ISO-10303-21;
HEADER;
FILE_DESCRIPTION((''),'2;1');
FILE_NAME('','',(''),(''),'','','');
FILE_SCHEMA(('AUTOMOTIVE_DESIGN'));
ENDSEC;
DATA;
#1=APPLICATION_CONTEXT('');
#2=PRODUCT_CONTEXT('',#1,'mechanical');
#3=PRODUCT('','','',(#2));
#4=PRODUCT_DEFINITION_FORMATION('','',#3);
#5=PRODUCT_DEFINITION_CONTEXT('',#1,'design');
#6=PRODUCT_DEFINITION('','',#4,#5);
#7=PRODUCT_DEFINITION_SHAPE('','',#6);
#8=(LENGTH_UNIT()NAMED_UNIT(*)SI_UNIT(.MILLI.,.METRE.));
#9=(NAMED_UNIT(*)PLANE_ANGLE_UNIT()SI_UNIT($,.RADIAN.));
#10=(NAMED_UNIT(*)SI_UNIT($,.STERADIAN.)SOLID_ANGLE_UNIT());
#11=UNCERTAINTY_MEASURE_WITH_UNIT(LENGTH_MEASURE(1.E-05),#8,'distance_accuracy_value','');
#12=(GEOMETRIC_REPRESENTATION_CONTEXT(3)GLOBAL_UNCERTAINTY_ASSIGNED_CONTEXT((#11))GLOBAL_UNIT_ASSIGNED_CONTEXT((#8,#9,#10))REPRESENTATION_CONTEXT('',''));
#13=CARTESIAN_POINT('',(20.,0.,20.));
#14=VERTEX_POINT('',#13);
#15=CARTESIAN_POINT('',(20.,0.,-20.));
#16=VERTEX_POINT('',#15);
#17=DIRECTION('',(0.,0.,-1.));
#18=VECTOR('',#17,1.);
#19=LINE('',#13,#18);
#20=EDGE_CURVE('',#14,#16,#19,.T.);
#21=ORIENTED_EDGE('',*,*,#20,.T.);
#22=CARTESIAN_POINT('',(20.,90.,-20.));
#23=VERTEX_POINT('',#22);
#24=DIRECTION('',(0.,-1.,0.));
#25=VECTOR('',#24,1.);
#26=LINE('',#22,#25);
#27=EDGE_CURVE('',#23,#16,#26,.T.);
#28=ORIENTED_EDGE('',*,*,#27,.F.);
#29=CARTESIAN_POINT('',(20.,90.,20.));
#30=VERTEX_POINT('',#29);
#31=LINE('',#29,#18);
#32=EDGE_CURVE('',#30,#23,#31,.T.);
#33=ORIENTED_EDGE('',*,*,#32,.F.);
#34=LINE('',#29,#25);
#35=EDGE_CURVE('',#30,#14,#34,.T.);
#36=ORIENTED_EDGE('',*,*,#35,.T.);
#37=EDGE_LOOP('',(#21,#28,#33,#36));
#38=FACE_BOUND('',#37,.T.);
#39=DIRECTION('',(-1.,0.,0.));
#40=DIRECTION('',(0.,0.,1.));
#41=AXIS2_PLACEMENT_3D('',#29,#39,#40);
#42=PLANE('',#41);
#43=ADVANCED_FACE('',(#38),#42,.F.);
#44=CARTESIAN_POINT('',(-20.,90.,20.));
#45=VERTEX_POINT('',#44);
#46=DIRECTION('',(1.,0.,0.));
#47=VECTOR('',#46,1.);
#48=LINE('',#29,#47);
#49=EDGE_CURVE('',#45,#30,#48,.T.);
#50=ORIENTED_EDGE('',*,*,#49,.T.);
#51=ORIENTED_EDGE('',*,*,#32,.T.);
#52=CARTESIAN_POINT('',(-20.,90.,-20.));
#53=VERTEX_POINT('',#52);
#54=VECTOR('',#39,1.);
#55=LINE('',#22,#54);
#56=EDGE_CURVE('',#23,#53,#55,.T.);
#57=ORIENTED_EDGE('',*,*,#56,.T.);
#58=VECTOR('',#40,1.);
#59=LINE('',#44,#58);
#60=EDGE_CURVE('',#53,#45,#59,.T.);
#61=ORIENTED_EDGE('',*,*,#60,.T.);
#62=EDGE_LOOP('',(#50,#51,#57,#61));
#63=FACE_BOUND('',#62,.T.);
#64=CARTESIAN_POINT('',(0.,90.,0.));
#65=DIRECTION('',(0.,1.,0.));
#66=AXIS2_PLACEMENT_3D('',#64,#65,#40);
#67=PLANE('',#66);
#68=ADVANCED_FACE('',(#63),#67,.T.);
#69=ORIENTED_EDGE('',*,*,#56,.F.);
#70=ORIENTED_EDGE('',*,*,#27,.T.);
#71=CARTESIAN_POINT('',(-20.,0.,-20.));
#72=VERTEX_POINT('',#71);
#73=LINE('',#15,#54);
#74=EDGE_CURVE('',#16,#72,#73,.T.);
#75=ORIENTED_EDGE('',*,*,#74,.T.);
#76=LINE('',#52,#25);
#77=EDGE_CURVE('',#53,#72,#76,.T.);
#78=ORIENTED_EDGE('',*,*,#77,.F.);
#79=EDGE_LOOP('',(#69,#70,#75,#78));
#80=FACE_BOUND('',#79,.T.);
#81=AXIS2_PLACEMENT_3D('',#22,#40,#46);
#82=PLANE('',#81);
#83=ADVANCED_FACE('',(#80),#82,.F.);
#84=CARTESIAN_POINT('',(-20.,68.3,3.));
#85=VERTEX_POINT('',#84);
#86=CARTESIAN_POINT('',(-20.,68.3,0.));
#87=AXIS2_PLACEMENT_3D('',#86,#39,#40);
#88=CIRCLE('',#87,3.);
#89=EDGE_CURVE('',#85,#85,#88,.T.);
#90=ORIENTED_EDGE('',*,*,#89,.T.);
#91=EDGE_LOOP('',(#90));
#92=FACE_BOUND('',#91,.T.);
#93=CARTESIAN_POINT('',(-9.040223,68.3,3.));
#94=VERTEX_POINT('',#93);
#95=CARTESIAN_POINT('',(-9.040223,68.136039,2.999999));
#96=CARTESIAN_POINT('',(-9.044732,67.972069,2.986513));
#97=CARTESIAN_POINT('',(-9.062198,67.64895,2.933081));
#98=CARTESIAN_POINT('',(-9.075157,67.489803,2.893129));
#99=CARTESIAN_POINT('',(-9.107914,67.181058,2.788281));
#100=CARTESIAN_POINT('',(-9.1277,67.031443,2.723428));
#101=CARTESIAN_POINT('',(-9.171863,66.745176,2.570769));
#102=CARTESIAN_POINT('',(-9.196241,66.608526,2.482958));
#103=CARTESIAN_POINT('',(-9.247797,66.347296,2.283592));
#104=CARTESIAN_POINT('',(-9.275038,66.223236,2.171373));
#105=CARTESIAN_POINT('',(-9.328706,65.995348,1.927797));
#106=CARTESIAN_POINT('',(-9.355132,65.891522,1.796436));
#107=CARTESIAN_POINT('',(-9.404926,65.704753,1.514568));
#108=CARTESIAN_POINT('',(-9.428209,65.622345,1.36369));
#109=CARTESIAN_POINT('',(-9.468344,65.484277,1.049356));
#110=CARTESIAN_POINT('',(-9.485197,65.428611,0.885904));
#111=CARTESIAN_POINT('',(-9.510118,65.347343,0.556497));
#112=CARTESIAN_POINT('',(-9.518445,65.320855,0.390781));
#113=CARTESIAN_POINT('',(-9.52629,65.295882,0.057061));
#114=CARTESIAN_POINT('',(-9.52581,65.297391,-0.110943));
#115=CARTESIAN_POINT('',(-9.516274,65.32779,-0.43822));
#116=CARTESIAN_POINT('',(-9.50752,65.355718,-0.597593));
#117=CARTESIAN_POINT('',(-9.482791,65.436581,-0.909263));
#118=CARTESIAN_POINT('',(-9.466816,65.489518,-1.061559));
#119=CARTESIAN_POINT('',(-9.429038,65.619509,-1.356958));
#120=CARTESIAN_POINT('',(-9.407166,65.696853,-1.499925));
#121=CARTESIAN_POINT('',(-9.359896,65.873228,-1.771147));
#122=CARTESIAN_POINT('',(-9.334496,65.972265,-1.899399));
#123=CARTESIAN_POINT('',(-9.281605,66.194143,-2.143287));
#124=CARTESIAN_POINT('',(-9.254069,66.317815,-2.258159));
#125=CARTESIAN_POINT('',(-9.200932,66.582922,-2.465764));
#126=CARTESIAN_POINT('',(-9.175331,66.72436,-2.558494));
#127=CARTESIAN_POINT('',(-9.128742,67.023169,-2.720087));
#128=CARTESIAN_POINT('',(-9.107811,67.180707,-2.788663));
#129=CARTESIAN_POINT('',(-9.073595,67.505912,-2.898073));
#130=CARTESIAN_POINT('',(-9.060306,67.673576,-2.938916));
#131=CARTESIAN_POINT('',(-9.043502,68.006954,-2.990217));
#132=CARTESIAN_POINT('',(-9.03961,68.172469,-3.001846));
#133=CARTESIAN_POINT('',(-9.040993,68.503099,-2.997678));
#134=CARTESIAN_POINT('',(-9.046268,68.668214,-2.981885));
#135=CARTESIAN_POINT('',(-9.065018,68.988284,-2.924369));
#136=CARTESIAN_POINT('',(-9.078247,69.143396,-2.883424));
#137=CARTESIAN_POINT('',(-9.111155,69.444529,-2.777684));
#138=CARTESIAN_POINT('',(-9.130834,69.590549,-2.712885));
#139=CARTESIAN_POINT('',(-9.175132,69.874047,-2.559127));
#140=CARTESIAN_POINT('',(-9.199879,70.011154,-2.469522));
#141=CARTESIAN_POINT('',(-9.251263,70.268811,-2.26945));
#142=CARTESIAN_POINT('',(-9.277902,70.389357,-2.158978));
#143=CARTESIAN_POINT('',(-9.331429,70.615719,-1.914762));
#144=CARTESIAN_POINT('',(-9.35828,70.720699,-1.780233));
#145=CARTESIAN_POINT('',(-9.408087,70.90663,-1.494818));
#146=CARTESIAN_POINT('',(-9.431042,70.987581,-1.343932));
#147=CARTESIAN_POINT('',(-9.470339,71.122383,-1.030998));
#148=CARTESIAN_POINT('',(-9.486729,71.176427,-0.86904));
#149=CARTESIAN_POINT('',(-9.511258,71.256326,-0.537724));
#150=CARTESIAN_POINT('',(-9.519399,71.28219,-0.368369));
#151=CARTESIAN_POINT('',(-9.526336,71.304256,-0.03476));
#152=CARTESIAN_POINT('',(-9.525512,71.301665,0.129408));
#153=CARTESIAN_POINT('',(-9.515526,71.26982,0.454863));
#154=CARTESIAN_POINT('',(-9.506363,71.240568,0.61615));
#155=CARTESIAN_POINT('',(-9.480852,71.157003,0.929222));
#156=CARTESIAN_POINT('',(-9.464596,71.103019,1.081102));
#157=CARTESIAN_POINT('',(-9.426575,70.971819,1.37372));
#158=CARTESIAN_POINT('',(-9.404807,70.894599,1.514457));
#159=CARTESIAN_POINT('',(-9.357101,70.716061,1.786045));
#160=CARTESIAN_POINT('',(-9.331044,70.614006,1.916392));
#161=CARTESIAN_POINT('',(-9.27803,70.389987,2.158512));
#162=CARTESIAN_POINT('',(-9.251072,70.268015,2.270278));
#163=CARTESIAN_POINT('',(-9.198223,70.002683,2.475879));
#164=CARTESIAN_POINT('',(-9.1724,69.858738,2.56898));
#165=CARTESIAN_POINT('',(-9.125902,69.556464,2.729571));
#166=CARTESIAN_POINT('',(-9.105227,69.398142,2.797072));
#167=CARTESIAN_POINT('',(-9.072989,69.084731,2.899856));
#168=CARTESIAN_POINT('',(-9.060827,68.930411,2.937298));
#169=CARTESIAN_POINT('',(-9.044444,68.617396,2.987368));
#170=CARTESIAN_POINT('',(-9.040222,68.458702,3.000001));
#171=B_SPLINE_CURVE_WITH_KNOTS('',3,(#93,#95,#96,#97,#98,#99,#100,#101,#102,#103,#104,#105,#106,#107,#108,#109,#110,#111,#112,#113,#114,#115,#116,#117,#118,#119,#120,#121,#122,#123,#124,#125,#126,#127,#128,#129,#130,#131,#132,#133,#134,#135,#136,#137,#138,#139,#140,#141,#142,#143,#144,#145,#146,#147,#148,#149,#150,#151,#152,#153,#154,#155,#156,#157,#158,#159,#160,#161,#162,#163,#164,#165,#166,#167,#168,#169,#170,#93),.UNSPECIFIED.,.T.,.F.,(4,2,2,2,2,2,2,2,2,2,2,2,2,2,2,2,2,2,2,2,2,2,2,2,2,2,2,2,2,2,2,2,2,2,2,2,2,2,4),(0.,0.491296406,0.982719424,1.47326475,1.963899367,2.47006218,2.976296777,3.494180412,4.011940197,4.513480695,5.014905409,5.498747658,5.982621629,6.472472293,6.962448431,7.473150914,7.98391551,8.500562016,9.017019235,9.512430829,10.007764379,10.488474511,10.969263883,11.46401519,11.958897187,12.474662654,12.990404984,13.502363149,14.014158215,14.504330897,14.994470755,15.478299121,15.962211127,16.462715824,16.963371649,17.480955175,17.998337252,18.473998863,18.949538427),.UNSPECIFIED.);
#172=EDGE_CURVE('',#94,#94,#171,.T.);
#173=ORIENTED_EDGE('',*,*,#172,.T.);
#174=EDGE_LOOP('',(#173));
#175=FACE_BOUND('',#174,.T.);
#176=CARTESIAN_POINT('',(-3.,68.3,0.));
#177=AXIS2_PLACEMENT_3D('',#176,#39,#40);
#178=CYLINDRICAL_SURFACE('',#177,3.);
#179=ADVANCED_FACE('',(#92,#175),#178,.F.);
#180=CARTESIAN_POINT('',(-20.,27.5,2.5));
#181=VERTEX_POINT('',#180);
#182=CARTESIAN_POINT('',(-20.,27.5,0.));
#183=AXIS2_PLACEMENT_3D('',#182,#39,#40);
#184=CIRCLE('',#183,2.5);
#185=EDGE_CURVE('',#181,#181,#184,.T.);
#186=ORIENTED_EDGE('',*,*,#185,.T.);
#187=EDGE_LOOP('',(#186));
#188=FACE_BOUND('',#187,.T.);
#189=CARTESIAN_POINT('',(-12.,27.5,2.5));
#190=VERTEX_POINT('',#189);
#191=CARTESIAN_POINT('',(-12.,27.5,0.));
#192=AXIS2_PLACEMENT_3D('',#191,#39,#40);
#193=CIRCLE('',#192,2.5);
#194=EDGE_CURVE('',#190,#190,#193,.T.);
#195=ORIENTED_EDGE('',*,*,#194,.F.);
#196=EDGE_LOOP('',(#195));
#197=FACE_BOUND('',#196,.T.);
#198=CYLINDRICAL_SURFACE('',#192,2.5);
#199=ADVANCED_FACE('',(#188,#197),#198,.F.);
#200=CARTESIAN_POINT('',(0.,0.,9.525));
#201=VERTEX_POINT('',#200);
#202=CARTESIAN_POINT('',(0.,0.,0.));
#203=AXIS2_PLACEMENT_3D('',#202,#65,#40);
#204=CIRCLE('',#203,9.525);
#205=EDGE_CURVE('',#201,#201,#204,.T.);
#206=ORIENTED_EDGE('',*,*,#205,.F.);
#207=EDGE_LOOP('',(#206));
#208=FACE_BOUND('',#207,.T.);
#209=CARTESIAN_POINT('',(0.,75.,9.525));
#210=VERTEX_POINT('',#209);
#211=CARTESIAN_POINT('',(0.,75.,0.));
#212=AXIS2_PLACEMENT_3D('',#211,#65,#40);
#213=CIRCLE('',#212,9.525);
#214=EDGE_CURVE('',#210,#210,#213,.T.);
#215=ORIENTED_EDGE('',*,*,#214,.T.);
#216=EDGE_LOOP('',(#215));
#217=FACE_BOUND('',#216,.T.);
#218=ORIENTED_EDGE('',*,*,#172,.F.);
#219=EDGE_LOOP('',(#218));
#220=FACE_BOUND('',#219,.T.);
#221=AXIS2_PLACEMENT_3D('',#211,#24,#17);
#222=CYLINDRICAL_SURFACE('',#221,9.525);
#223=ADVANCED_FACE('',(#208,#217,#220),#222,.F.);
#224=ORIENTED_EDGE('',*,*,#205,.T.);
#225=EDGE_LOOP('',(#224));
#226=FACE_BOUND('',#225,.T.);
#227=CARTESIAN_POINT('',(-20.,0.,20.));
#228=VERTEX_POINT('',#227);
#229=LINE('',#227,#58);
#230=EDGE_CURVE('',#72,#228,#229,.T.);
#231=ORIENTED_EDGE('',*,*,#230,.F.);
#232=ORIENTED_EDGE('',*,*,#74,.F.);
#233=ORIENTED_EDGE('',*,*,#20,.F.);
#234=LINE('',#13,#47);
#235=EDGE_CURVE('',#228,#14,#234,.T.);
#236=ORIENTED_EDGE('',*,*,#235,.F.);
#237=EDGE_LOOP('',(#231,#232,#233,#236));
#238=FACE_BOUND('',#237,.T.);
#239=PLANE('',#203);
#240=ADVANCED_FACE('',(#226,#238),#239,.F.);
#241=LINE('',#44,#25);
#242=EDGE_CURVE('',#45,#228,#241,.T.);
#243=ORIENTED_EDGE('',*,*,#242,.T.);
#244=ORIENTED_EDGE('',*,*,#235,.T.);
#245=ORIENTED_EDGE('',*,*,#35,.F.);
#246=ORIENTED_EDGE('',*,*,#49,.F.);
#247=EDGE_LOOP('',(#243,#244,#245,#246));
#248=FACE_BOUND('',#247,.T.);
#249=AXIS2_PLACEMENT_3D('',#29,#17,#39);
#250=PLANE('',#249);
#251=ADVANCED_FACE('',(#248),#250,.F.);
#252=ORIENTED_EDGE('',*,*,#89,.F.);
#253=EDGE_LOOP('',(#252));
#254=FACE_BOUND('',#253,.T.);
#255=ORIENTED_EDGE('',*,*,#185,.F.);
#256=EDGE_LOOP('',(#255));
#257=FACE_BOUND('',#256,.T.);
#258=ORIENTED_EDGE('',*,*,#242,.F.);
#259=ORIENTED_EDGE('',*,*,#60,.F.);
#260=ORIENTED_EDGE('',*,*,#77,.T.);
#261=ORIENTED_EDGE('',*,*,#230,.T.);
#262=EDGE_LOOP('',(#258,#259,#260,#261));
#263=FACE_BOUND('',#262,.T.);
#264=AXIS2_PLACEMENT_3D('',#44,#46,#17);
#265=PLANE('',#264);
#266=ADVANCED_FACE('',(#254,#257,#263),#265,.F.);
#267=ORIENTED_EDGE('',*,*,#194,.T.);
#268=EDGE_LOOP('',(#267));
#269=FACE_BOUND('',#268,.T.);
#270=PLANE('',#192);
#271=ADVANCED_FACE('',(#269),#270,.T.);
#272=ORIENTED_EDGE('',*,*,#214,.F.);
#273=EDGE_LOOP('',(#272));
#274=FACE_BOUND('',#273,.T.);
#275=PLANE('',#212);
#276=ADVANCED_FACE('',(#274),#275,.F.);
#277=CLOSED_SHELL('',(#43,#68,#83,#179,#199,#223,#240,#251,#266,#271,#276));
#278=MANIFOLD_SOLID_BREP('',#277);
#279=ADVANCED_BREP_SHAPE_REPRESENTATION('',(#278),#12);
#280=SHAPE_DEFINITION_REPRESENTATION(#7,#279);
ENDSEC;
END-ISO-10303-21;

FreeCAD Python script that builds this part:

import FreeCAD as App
import Part
import Sketcher

V = App.Vector
Q = App.Units.Quantity

doc = App.newDocument("Part")
body = doc.addObject("PartDesign::Body", "Body")

sketch1 = body.newObject("Sketcher::SketchObject", "Sketch")
sketch1.AttachmentSupport = (doc.getObject("XZ_Plane"), [""])
sketch1.MapMode = "FlatFace"
sketch1.addGeometry([
    Part.LineSegment(V(-20, -20, 0), V(-20, 20, 0)),
    Part.LineSegment(V(-20, 20, 0), V(20, 20, 0)),
    Part.LineSegment(V(20, 20, 0), V(20, -20, 0)),
    Part.LineSegment(V(20, -20, 0), V(-20, -20, 0)),
], False)
sketch1.addConstraint([
    Sketcher.Constraint("Coincident", 0, 2, 1, 1),
    Sketcher.Constraint("Coincident", 1, 2, 2, 1),
    Sketcher.Constraint("Coincident", 2, 2, 3, 1),
    Sketcher.Constraint("Coincident", 3, 2, 0, 1),
    Sketcher.Constraint("Vertical", 0),
    Sketcher.Constraint("Horizontal", 1),
    Sketcher.Constraint("Vertical", 2),
    Sketcher.Constraint("Horizontal", 3),
    Sketcher.Constraint("Symmetric", 0, 2, 2, 2, -1, 1),
    Sketcher.Constraint("Equal", 3, 0),
    Sketcher.Constraint("DistanceX", 1, 1, 1, 2, Q("40 mm")),
])
pad1 = body.newObject("PartDesign::Pad", "Pad")
pad1.Profile = sketch1
pad1.Length = 90
pad1.Reversed = True

sketch2 = body.newObject("Sketcher::SketchObject", "Sketch001")
sketch2.AttachmentSupport = (doc.getObject("XZ_Plane"), [""])
sketch2.MapMode = "FlatFace"
sketch2.addGeometry(Part.Circle(V(0, 0, 0), V(0, 0, 1), 9.525), False)
sketch2.addConstraint([
    Sketcher.Constraint("Coincident", 0, 3, -1, 1),
    Sketcher.Constraint("Diameter", 0, Q("19.05 mm")),
])
pocket1 = body.newObject("PartDesign::Pocket", "Pocket")
pocket1.Profile = sketch2
pocket1.Length = 75

sketch3 = body.newObject("Sketcher::SketchObject", "Sketch002")
sketch3.AttachmentSupport = (doc.getObject("YZ_Plane"), [""])
sketch3.MapMode = "FlatFace"
sketch3.AttachmentOffset = App.Placement(V(0, 0, -20), App.Rotation())
sketch3.addGeometry(Part.Circle(V(68.3, 0, 0), V(0, 0, 1), 3), False)
sketch3.addConstraint([
    Sketcher.Constraint("PointOnObject", 0, 3, -1),
    Sketcher.Constraint("Diameter", 0, Q("6 mm")),
    Sketcher.Constraint("DistanceX", -1, 1, 0, 3, Q("68.3 mm")),
])
pocket2 = body.newObject("PartDesign::Pocket", "Pocket001")
pocket2.Profile = sketch3
pocket2.Length = 17
pocket2.Reversed = True

sketch4 = body.newObject("Sketcher::SketchObject", "Sketch003")
sketch4.AttachmentSupport = (doc.getObject("YZ_Plane"), [""])
sketch4.MapMode = "FlatFace"
sketch4.AttachmentOffset = App.Placement(V(0, 0, -20), App.Rotation())
sketch4.addGeometry(Part.Circle(V(27.5, 0, 0), V(0, 0, 1), 2.5), False)
sketch4.addConstraint([
    Sketcher.Constraint("PointOnObject", 0, 3, -1),
    Sketcher.Constraint("Diameter", 0, Q("5 mm")),
    Sketcher.Constraint("DistanceX", -1, 1, 0, 3, Q("27.5 mm")),
])
pocket3 = body.newObject("PartDesign::Pocket", "Pocket002")
pocket3.Profile = sketch4
pocket3.Length = 8
pocket3.Reversed = True

doc.recompute()
